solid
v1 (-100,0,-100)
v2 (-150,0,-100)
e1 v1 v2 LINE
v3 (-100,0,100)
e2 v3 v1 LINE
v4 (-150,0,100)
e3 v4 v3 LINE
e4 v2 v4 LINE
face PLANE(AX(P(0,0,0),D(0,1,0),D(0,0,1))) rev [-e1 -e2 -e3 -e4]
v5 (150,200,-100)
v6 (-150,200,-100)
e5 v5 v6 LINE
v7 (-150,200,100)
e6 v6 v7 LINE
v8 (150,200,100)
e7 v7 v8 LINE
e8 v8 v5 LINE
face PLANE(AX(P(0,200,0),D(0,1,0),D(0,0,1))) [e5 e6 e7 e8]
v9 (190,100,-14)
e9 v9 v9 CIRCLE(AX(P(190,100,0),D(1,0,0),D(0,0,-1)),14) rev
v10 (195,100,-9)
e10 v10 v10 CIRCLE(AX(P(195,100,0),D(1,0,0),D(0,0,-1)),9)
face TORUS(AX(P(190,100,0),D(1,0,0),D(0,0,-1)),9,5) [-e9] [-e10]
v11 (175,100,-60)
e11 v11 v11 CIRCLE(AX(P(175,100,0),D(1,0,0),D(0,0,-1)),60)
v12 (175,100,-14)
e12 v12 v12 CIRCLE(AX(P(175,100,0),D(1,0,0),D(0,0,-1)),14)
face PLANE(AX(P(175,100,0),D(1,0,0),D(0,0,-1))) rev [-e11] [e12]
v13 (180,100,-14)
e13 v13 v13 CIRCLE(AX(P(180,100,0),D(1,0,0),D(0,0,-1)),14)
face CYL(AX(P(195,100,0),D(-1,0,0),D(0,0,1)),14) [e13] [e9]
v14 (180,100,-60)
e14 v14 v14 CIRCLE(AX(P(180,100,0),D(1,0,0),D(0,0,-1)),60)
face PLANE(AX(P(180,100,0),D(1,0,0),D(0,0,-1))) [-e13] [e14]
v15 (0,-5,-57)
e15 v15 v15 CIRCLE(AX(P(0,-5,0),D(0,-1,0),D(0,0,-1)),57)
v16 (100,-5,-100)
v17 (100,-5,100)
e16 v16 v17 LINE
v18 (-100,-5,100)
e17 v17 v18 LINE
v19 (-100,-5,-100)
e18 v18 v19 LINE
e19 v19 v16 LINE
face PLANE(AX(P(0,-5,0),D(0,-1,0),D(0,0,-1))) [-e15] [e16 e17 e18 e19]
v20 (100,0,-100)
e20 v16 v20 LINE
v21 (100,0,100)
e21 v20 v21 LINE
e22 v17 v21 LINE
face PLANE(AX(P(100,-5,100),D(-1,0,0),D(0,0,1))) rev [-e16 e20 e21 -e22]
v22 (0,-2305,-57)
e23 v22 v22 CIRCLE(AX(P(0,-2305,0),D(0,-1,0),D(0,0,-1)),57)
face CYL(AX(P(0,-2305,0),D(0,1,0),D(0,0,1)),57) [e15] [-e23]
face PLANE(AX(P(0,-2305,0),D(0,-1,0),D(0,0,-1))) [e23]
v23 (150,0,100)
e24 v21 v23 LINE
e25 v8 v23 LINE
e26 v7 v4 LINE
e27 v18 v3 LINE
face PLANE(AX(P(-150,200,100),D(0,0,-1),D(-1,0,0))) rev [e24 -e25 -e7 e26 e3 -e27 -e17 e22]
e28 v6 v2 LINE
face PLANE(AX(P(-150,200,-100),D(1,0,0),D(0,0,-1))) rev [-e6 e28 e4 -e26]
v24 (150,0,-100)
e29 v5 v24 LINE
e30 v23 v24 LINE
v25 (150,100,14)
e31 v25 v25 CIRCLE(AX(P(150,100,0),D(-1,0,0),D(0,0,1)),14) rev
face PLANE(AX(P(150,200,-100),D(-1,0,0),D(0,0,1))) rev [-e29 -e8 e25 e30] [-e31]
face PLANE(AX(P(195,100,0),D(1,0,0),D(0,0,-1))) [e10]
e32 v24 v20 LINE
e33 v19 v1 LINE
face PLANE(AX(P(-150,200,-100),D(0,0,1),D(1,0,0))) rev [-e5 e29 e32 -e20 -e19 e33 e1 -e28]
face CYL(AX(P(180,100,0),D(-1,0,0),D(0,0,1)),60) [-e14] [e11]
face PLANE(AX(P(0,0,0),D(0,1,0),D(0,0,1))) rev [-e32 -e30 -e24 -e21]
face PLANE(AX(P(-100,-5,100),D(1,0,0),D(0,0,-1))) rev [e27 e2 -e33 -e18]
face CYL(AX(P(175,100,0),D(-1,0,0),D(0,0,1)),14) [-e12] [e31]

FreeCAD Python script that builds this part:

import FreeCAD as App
import Part
import Sketcher
Q = App.Units.Quantity


def edges_at(feature, points):
    """Names of the edges that pass closest to the given points."""
    edges = feature.Shape.Edges
    near = lambda p: min(range(len(edges)), key=lambda i: edges[i].distToShape(Part.Vertex(*p))[0])
    return sorted({f"Edge{near(p) + 1}" for p in points})

doc = App.newDocument("Part")
params = doc.addObject("Spreadsheet::Sheet", "Params")
for row, (alias, value) in enumerate([
    ("sketch1_width", "300 mm"),
    ("sketch1_height", "200 mm"),
    ("pad1_length", "200 mm"),
    ("sketch2_diameter", "28 mm"),
    ("pad2_length", "25 mm"),
    ("sketch3_diameter", "120 mm"),
    ("pad3_length", "5 mm"),
    ("sketch4_diameter", "28 mm"),
    ("pad4_length", "15 mm"),
    ("fillet_radius", "5 mm"),
    ("sketch5_width", "200 mm"),
    ("pad5_length", "5 mm"),
    ("sketch6_diameter", "114 mm"),
    ("pad6_length", "2300 mm"),
], start=1):
    params.set(f"A{row}", alias)
    params.set(f"B{row}", "=" + value)
    params.setAlias(f"B{row}", alias)

body = doc.addObject("PartDesign::Body", "Body")

sketch1 = body.newObject("Sketcher::SketchObject", "Sketch")
sketch1.AttachmentSupport = (doc.getObject("XZ_Plane"), [""])
sketch1.MapMode = "FlatFace"
sketch1.addGeometry([
    Part.LineSegment(App.Vector(-150, -100, 0), App.Vector(-150, 100, 0)),
    Part.LineSegment(App.Vector(-150, 100, 0), App.Vector(150, 100, 0)),
    Part.LineSegment(App.Vector(150, 100, 0), App.Vector(150, -100, 0)),
    Part.LineSegment(App.Vector(150, -100, 0), App.Vector(-150, -100, 0)),
], False)
sketch1.addConstraint([
    Sketcher.Constraint("Coincident", 0, 2, 1, 1),
    Sketcher.Constraint("Coincident", 1, 2, 2, 1),
    Sketcher.Constraint("Coincident", 2, 2, 3, 1),
    Sketcher.Constraint("Coincident", 3, 2, 0, 1),
    Sketcher.Constraint("Vertical", 0),
    Sketcher.Constraint("Horizontal", 1),
    Sketcher.Constraint("Vertical", 2),
    Sketcher.Constraint("Horizontal", 3),
    Sketcher.Constraint("Symmetric", 0, 2, 2, 2, -1, 1),
    Sketcher.Constraint("DistanceX", 1, 1, 1, 2, Q("300 mm")),
    Sketcher.Constraint("DistanceY", 0, 1, 0, 2, Q("200 mm")),
])
sketch1.setExpression("Constraints[9]", "Params.sketch1_width")
sketch1.setExpression("Constraints[10]", "Params.sketch1_height")
pad1 = body.newObject("PartDesign::Pad", "Pad")
pad1.Profile = sketch1
pad1.setExpression("Length", "Params.pad1_length")
pad1.Reversed = True

sketch2 = body.newObject("Sketcher::SketchObject", "Sketch001")
sketch2.AttachmentSupport = (doc.getObject("YZ_Plane"), [""])
sketch2.MapMode = "FlatFace"
sketch2.AttachmentOffset = App.Placement(App.Vector(0, 0, 150), App.Rotation())
sketch2.addGeometry(Part.Circle(App.Vector(100, 0, 0), App.Vector(0, 0, 1), 14), False)
sketch2.addConstraint([
    Sketcher.Constraint("PointOnObject", 0, 3, -1),
    Sketcher.Constraint("Diameter", 0, Q("28 mm")),
    Sketcher.Constraint("DistanceX", -1, 1, 0, 3, Q("100 mm")),
])
sketch2.setExpression("Constraints[1]", "Params.sketch2_diameter")
pad2 = body.newObject("PartDesign::Pad", "Pad001")
pad2.Profile = sketch2
pad2.setExpression("Length", "Params.pad2_length")

sketch3 = body.newObject("Sketcher::SketchObject", "Sketch002")
sketch3.AttachmentSupport = (doc.getObject("YZ_Plane"), [""])
sketch3.MapMode = "FlatFace"
sketch3.AttachmentOffset = App.Placement(App.Vector(0, 0, 175), App.Rotation())
sketch3.addGeometry(Part.Circle(App.Vector(100, 0, 0), App.Vector(0, 0, 1), 60), False)
sketch3.addConstraint([
    Sketcher.Constraint("PointOnObject", 0, 3, -1),
    Sketcher.Constraint("Diameter", 0, Q("120 mm")),
    Sketcher.Constraint("DistanceX", -1, 1, 0, 3, Q("100 mm")),
])
sketch3.setExpression("Constraints[1]", "Params.sketch3_diameter")
pad3 = body.newObject("PartDesign::Pad", "Pad002")
pad3.Profile = sketch3
pad3.setExpression("Length", "Params.pad3_length")

sketch4 = body.newObject("Sketcher::SketchObject", "Sketch003")
sketch4.AttachmentSupport = (doc.getObject("YZ_Plane"), [""])
sketch4.MapMode = "FlatFace"
sketch4.AttachmentOffset = App.Placement(App.Vector(0, 0, 180), App.Rotation())
sketch4.addGeometry(Part.Circle(App.Vector(100, 0, 0), App.Vector(0, 0, 1), 14), False)
sketch4.addConstraint([
    Sketcher.Constraint("PointOnObject", 0, 3, -1),
    Sketcher.Constraint("Diameter", 0, Q("28 mm")),
    Sketcher.Constraint("DistanceX", -1, 1, 0, 3, Q("100 mm")),
])
sketch4.setExpression("Constraints[1]", "Params.sketch4_diameter")
pad4 = body.newObject("PartDesign::Pad", "Pad003")
pad4.Profile = sketch4
pad4.setExpression("Length", "Params.pad4_length")
doc.recompute()

fillet = body.newObject("PartDesign::Fillet", "Fillet")
fillet.Base = (pad4, edges_at(pad4, [(195, 100, 14)]))
fillet.setExpression("Radius", "Params.fillet_radius")

sketch5 = body.newObject("Sketcher::SketchObject", "Sketch004")
sketch5.AttachmentSupport = (doc.getObject("XZ_Plane"), [""])
sketch5.MapMode = "FlatFace"
sketch5.addGeometry([
    Part.LineSegment(App.Vector(-100, 100, 0), App.Vector(-100, -100, 0)),
    Part.LineSegment(App.Vector(-100, -100, 0), App.Vector(100, -100, 0)),
    Part.LineSegment(App.Vector(100, -100, 0), App.Vector(100, 100, 0)),
    Part.LineSegment(App.Vector(100, 100, 0), App.Vector(-100, 100, 0)),
], False)
sketch5.addConstraint([
    Sketcher.Constraint("Coincident", 0, 2, 1, 1),
    Sketcher.Constraint("Coincident", 1, 2, 2, 1),
    Sketcher.Constraint("Coincident", 2, 2, 3, 1),
    Sketcher.Constraint("Coincident", 3, 2, 0, 1),
    Sketcher.Constraint("Vertical", 0),
    Sketcher.Constraint("Horizontal", 1),
    Sketcher.Constraint("Vertical", 2),
    Sketcher.Constraint("Horizontal", 3),
    Sketcher.Constraint("Symmetric", 0, 2, 2, 2, -1, 1),
    Sketcher.Constraint("Equal", 3, 0),
    Sketcher.Constraint("DistanceX", 1, 1, 1, 2, Q("200 mm")),
])
sketch5.setExpression("Constraints[10]", "Params.sketch5_width")
pad5 = body.newObject("PartDesign::Pad", "Pad004")
pad5.Profile = sketch5
pad5.setExpression("Length", "Params.pad5_length")

sketch6 = body.newObject("Sketcher::SketchObject", "Sketch005")
sketch6.AttachmentSupport = (doc.getObject("XZ_Plane"), [""])
sketch6.MapMode = "FlatFace"
sketch6.AttachmentOffset = App.Placement(App.Vector(0, 0, 5), App.Rotation())
sketch6.addGeometry(Part.Circle(App.Vector(0, 0, 0), App.Vector(0, 0, 1), 57), False)
sketch6.addConstraint([
    Sketcher.Constraint("Coincident", 0, 3, -1, 1),
    Sketcher.Constraint("Diameter", 0, Q("114 mm")),
])
sketch6.setExpression("Constraints[1]", "Params.sketch6_diameter")
pad6 = body.newObject("PartDesign::Pad", "Pad005")
pad6.Profile = sketch6
pad6.setExpression("Length", "Params.pad6_length")

doc.recompute()
